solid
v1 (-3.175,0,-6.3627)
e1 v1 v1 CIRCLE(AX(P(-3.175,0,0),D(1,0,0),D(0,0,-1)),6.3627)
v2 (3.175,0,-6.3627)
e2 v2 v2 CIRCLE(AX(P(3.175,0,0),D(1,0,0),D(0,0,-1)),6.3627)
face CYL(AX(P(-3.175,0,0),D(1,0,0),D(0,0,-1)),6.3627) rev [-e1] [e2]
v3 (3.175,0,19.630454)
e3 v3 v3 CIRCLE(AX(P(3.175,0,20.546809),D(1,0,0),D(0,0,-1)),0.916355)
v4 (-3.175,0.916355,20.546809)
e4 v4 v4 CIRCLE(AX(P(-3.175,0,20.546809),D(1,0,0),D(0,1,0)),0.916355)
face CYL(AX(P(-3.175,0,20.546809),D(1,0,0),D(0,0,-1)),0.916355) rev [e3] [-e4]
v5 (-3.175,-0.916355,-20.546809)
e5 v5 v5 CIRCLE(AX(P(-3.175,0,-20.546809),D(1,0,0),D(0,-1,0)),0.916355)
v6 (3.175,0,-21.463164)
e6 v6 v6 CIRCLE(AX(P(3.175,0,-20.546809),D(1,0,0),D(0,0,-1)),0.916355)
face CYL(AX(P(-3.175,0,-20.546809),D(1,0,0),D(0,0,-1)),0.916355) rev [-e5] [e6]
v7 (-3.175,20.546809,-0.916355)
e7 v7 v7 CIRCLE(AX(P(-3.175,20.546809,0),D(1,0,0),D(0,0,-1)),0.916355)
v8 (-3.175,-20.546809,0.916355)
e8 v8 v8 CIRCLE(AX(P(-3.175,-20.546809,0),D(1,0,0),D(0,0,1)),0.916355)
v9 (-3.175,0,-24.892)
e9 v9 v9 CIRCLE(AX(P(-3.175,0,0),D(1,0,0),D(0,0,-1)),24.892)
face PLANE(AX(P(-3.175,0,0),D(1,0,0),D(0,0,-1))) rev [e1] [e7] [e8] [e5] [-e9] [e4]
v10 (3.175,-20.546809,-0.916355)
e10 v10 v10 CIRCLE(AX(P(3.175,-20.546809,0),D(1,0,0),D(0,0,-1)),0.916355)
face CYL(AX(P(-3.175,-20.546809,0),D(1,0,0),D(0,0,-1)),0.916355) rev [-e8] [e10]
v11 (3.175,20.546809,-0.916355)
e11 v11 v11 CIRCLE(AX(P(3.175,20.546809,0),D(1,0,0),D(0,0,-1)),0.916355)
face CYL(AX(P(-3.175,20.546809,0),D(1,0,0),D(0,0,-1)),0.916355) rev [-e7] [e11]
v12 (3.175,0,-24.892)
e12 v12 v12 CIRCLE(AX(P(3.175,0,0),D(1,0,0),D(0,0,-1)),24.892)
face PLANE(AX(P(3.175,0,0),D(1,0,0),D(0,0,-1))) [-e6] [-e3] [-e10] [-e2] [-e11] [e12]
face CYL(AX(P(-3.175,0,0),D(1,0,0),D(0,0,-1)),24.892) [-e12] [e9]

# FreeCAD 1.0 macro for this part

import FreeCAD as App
import Part
import Sketcher
Q = App.Units.Quantity

doc = App.newDocument("Part")
body = doc.addObject("PartDesign::Body", "Body")

# Sketch on YZ plane
sketch1 = doc.addObject("Sketcher::SketchObject", "Sketch")
body.addObject(sketch1)
sketch1.AttachmentSupport = (doc.YZ_Plane, [""])
sketch1.MapMode = "FlatFace"
sketch1.addGeometry(Part.Circle(App.Vector(0, 0, 0), App.Vector(0, 0, 1), 24.892), False)
sketch1.addGeometry(Part.Circle(App.Vector(0, 0, 0), App.Vector(0, 0, 1), 6.3627), False)
sketch1.addConstraint(Sketcher.Constraint("Coincident", 0, 3, -1, 1))
sketch1.addConstraint(Sketcher.Constraint("Coincident", 1, 3, -1, 1))
sketch1.addConstraint(Sketcher.Constraint("Diameter", 0, Q("1.96 in")))
sketch1.addConstraint(Sketcher.Constraint("Diameter", 1, Q("0.501 in")))
pad1 = doc.addObject("PartDesign::Pad", "Pad")
body.addObject(pad1)
pad1.Profile = sketch1
pad1.Type = "TwoLengths"
pad1.Length = Q("0.125 in")
pad1.Length2 = Q("0.125 in")

# Sketch on YZ plane
sketch2 = doc.addObject("Sketcher::SketchObject", "Sketch001")
body.addObject(sketch2)
sketch2.AttachmentSupport = (doc.YZ_Plane, [""])
sketch2.MapMode = "FlatFace"
sketch2.AttachmentOffset = App.Placement(App.Vector(0, 0, 0.125 * 25.4), App.Rotation())
sketch2.addGeometry(Part.Circle(App.Vector(20.546809, 0, 0), App.Vector(0, 0, 1), 0.916355), False)
sketch2.addConstraint(Sketcher.Constraint("PointOnObject", 0, 3, -1))
sketch2.addConstraint(Sketcher.Constraint("Diameter", 0, 1.83271))
sketch2.addConstraint(Sketcher.Constraint("DistanceX", -1, 1, 0, 3, 20.546809))
pocket1 = doc.addObject("PartDesign::Pocket", "Pocket")
body.addObject(pocket1)
pocket1.Profile = sketch2
pocket1.Length = 73.54148
pocket1.Midplane = True
doc.recompute()

polarpattern = doc.addObject("PartDesign::PolarPattern", "PolarPattern")
body.addObject(polarpattern)
polarpattern.Originals = [pocket1]
polarpattern.Axis = (doc.X_Axis, [""])
polarpattern.Angle = 360
polarpattern.Occurrences = 4
body.Tip = polarpattern

doc.recompute()
